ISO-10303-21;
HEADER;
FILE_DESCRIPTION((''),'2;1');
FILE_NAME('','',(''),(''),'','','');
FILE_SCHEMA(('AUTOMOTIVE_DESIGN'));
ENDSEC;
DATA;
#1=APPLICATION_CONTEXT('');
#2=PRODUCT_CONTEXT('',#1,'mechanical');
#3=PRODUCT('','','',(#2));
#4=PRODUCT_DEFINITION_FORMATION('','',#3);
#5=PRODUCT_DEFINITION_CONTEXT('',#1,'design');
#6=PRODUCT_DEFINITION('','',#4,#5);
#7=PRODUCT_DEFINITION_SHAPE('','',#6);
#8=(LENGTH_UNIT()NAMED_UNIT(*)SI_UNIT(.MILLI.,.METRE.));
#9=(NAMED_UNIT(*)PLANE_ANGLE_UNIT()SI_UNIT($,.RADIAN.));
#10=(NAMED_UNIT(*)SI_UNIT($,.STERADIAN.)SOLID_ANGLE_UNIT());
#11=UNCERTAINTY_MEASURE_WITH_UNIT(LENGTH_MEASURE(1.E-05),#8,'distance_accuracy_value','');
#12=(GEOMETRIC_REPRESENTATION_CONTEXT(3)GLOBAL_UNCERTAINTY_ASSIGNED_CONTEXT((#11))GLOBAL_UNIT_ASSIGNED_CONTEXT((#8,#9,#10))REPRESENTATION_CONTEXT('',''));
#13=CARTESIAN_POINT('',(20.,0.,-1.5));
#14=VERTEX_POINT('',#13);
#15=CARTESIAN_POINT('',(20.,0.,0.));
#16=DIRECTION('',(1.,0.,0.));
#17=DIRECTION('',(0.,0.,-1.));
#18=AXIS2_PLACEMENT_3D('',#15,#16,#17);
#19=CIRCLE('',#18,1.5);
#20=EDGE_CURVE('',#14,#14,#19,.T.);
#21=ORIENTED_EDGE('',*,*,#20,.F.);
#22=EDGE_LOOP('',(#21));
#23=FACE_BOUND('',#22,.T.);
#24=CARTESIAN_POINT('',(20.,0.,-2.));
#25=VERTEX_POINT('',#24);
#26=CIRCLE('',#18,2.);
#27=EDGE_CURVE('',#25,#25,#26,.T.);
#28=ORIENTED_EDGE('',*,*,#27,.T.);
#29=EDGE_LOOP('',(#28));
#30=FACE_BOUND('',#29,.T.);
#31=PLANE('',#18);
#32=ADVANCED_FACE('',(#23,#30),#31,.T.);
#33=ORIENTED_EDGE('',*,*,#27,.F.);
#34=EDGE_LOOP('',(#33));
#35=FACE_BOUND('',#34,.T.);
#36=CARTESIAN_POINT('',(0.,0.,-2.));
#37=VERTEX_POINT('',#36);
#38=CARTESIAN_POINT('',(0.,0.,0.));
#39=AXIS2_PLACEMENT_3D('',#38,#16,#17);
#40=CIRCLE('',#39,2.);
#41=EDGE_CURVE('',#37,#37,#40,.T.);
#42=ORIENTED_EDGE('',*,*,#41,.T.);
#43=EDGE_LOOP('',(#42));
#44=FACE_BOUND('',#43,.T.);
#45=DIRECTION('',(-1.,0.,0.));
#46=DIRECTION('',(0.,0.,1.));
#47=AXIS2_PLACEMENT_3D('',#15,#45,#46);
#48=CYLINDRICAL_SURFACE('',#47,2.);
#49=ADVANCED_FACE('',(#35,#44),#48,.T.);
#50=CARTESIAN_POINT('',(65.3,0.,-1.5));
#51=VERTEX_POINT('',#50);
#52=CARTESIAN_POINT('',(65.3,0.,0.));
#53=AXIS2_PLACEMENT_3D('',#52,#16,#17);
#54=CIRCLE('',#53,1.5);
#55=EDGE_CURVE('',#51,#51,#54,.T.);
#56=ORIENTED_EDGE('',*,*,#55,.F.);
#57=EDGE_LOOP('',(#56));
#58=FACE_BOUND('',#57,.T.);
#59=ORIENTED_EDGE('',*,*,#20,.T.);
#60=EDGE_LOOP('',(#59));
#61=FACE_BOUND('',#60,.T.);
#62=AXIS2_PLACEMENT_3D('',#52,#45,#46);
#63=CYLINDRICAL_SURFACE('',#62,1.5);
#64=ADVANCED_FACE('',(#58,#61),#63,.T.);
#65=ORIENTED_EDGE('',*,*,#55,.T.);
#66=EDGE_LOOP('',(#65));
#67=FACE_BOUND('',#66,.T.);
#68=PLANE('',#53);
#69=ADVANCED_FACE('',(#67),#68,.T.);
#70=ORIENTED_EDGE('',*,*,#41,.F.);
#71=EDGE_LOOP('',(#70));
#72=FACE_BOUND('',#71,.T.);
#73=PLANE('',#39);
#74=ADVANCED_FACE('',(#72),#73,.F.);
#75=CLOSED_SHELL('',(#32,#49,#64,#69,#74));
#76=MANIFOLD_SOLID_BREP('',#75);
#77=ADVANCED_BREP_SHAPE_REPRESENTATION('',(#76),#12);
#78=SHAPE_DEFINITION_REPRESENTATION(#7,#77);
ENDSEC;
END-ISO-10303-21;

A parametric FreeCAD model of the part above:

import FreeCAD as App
import Part
import Sketcher
from FreeCAD import Vector

doc = App.newDocument("Part")
body = doc.addObject("PartDesign::Body", "Body")

# Sketch on YZ plane
sketch1 = body.newObject("Sketcher::SketchObject", "Sketch")
sketch1.AttachmentSupport = (doc.getObject("YZ_Plane"), [""])
sketch1.MapMode = "FlatFace"
sketch1.addGeometry(Part.Circle(Vector(0, 0, 0), Vector(0, 0, 1), 2), False)
sketch1.addConstraint(Sketcher.Constraint("Coincident", 0, 3, -1, 1))
sketch1.addConstraint(Sketcher.Constraint("Diameter", 0, 4.0))
pad1 = body.newObject("PartDesign::Pad", "Pad")
pad1.Profile = sketch1
pad1.Length = 20

# Sketch on YZ plane
sketch2 = body.newObject("Sketcher::SketchObject", "Sketch001")
sketch2.AttachmentSupport = (doc.getObject("YZ_Plane"), [""])
sketch2.MapMode = "FlatFace"
sketch2.AttachmentOffset = App.Placement(Vector(0, 0, 20), App.Rotation())
sketch2.addGeometry(Part.Circle(Vector(0, 0, 0), Vector(0, 0, 1), 1.5), False)
sketch2.addConstraint(Sketcher.Constraint("Coincident", 0, 3, -1, 1))
sketch2.addConstraint(Sketcher.Constraint("Diameter", 0, 3.0))
pad2 = body.newObject("PartDesign::Pad", "Pad001")
pad2.Profile = sketch2
pad2.Length = 45.3

doc.recompute()
